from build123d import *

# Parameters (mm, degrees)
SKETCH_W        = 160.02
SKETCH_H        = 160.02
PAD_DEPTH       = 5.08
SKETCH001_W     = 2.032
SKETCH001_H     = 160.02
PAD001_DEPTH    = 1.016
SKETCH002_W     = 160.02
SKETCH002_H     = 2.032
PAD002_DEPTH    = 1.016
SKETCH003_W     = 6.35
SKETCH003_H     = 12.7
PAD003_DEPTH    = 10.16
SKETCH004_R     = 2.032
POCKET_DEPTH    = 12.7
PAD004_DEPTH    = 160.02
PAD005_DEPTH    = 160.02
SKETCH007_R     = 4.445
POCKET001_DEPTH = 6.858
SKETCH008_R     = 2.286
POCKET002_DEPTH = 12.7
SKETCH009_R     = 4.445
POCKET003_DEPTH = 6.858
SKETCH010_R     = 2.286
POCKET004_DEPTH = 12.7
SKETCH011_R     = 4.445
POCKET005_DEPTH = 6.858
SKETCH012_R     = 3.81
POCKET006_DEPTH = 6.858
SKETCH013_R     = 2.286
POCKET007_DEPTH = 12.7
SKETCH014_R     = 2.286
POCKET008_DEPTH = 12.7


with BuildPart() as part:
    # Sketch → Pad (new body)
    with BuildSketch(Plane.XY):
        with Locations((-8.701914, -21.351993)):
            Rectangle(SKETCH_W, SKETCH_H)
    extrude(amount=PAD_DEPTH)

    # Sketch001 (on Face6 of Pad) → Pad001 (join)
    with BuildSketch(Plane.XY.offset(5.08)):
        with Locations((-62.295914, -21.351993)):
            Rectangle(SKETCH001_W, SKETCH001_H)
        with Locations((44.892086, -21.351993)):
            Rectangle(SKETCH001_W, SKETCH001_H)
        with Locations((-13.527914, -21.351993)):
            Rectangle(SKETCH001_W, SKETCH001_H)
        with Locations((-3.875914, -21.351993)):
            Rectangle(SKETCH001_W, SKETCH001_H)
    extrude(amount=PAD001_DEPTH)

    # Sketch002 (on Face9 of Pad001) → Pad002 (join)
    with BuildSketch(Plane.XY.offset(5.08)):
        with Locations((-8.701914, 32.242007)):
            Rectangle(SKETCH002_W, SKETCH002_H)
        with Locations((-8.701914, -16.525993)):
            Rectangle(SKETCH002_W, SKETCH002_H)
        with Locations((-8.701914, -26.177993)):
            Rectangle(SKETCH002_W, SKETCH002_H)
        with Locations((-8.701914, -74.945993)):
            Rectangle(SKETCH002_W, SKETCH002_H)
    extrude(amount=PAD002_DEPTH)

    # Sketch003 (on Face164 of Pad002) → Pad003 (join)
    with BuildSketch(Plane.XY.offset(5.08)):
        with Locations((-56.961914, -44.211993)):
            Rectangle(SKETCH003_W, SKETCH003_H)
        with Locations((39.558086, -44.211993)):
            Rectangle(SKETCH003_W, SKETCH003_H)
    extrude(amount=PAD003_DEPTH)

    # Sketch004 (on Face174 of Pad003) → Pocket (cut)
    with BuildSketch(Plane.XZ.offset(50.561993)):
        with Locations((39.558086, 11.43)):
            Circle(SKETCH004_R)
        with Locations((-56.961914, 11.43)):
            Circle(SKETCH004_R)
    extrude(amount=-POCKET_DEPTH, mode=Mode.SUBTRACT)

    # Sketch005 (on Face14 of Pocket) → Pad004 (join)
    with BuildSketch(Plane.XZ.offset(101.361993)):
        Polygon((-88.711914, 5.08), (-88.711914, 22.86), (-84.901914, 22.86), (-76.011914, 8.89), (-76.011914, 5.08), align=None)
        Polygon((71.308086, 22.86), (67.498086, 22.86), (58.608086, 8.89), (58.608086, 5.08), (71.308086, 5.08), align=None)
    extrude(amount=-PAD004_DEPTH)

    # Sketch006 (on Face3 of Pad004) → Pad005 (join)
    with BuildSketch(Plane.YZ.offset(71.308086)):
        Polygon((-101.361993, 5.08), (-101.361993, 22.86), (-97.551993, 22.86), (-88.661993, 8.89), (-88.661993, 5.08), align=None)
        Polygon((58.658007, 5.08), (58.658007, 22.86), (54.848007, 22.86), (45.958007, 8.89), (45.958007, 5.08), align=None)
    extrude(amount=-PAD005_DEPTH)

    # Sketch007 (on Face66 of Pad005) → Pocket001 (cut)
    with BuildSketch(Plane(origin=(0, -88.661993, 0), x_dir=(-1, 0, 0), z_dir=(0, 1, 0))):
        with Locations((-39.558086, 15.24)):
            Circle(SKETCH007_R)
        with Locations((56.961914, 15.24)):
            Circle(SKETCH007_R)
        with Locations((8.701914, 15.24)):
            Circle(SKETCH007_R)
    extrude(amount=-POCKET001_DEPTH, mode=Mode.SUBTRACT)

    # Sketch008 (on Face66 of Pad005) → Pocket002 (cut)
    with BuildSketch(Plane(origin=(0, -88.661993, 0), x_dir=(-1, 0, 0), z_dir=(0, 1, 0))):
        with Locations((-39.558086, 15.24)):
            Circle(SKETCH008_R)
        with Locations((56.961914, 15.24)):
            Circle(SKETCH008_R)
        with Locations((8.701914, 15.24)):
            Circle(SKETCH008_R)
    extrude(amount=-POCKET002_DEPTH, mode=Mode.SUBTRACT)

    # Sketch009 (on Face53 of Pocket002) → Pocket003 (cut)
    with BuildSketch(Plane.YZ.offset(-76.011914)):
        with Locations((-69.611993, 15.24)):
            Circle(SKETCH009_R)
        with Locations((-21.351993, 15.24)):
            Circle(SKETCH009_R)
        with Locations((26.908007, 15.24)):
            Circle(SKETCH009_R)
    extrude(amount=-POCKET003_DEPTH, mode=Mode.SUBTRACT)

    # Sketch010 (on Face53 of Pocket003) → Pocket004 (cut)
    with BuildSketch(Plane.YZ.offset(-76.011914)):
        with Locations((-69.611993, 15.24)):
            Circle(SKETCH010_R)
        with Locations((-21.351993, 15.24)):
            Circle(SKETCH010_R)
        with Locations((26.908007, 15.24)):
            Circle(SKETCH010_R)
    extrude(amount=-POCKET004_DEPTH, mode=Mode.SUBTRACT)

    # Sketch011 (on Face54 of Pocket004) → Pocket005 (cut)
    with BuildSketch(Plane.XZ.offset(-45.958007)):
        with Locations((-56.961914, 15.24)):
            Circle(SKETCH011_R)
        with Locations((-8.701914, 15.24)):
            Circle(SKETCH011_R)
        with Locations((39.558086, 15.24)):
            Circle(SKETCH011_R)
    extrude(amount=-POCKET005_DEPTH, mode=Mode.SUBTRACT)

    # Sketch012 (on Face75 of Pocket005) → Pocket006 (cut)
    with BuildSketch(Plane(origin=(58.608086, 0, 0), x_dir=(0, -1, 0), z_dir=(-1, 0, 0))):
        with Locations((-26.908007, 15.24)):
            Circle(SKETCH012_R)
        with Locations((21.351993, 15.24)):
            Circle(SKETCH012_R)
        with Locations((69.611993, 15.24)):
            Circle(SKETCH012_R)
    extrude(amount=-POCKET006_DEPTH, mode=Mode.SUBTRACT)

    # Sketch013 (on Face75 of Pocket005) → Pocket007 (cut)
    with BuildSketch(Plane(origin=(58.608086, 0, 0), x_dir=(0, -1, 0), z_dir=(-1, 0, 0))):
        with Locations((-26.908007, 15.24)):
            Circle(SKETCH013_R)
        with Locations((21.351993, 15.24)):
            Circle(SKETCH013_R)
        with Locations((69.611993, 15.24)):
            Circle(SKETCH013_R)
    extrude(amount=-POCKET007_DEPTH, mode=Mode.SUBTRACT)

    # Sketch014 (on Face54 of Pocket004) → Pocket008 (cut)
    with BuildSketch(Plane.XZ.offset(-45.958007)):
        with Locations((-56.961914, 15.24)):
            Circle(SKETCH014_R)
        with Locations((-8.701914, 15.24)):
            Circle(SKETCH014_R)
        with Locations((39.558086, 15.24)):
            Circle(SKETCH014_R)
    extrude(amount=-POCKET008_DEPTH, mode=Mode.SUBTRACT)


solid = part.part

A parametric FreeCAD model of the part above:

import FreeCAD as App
import Part
import Sketcher

V = App.Vector
Q = App.Units.Quantity

doc = App.newDocument("Part")
body = doc.addObject("PartDesign::Body", "Body")

# Sketch on XY plane
sketch1 = body.newObject("Sketcher::SketchObject", "Sketch")
sketch1.AttachmentSupport = (doc.getObject("XY_Plane"), [""])
sketch1.MapMode = "FlatFace"
sketch1.addGeometry(Part.LineSegment(V(-88.711914, 58.658007, 0), V(-88.711914, -101.361993, 0)), False)
sketch1.addGeometry(Part.LineSegment(V(-88.711914, -101.361993, 0), V(71.308086, -101.361993, 0)), False)
sketch1.addGeometry(Part.LineSegment(V(71.308086, -101.361993, 0), V(71.308086, 58.658007, 0)), False)
sketch1.addGeometry(Part.LineSegment(V(71.308086, 58.658007, 0), V(-88.711914, 58.658007, 0)), False)
sketch1.addConstraint(Sketcher.Constraint("Coincident", 0, 2, 1, 1))
sketch1.addConstraint(Sketcher.Constraint("Coincident", 1, 2, 2, 1))
sketch1.addConstraint(Sketcher.Constraint("Coincident", 2, 2, 3, 1))
sketch1.addConstraint(Sketcher.Constraint("Coincident", 3, 2, 0, 1))
sketch1.addConstraint(Sketcher.Constraint("Vertical", 0))
sketch1.addConstraint(Sketcher.Constraint("Horizontal", 1))
sketch1.addConstraint(Sketcher.Constraint("Vertical", 2))
sketch1.addConstraint(Sketcher.Constraint("Horizontal", 3))
sketch1.addConstraint(Sketcher.Constraint("Equal", 3, 0))
sketch1.addConstraint(Sketcher.Constraint("DistanceX", 1, 1, 1, 2, Q("6.3 in")))
sketch1.addConstraint(Sketcher.Constraint("DistanceX", 0, 2, -1, 1, Q("88.711914 mm")))
sketch1.addConstraint(Sketcher.Constraint("DistanceY", 0, 2, -1, 1, Q("101.361993 mm")))
pad1 = body.newObject("PartDesign::Pad", "Pad")
pad1.Profile = sketch1
pad1.Length = Q("0.2 in")

# Sketch on XY plane
sketch2 = body.newObject("Sketcher::SketchObject", "Sketch001")
sketch2.AttachmentSupport = (doc.getObject("XY_Plane"), [""])
sketch2.MapMode = "FlatFace"
sketch2.AttachmentOffset = App.Placement(V(0, 0, 0.2 * 25.4), App.Rotation())
sketch2.addGeometry(Part.LineSegment(V(-63.311914, 58.658007, 0), V(-63.311914, -101.361993, 0)), False)
sketch2.addGeometry(Part.LineSegment(V(-63.311914, -101.361993, 0), V(-61.279914, -101.361993, 0)), False)
sketch2.addGeometry(Part.LineSegment(V(-61.279914, -101.361993, 0), V(-61.279914, 58.658007, 0)), False)
sketch2.addGeometry(Part.LineSegment(V(-61.279914, 58.658007, 0), V(-63.311914, 58.658007, 0)), False)
sketch2.addGeometry(Part.LineSegment(V(43.876086, 58.658007, 0), V(43.876086, -101.361993, 0)), False)
sketch2.addGeometry(Part.LineSegment(V(43.876086, -101.361993, 0), V(45.908086, -101.361993, 0)), False)
sketch2.addGeometry(Part.LineSegment(V(45.908086, -101.361993, 0), V(45.908086, 58.658007, 0)), False)
sketch2.addGeometry(Part.LineSegment(V(45.908086, 58.658007, 0), V(43.876086, 58.658007, 0)), False)
sketch2.addGeometry(Part.LineSegment(V(-14.543914, 58.658007, 0), V(-14.543914, -101.361993, 0)), False)
sketch2.addGeometry(Part.LineSegment(V(-14.543914, -101.361993, 0), V(-12.511914, -101.361993, 0)), False)
sketch2.addGeometry(Part.LineSegment(V(-12.511914, -101.361993, 0), V(-12.511914, 58.658007, 0)), False)
sketch2.addGeometry(Part.LineSegment(V(-12.511914, 58.658007, 0), V(-14.543914, 58.658007, 0)), False)
sketch2.addGeometry(Part.LineSegment(V(-4.891914, 58.658007, 0), V(-4.891914, -101.361993, 0)), False)
sketch2.addGeometry(Part.LineSegment(V(-4.891914, -101.361993, 0), V(-2.859914, -101.361993, 0)), False)
sketch2.addGeometry(Part.LineSegment(V(-2.859914, -101.361993, 0), V(-2.859914, 58.658007, 0)), False)
sketch2.addGeometry(Part.LineSegment(V(-2.859914, 58.658007, 0), V(-4.891914, 58.658007, 0)), False)
sketch2.addConstraint(Sketcher.Constraint("Coincident", 0, 2, 1, 1))
sketch2.addConstraint(Sketcher.Constraint("Coincident", 1, 2, 2, 1))
sketch2.addConstraint(Sketcher.Constraint("Coincident", 2, 2, 3, 1))
sketch2.addConstraint(Sketcher.Constraint("Coincident", 3, 2, 0, 1))
sketch2.addConstraint(Sketcher.Constraint("Coincident", 4, 2, 5, 1))
sketch2.addConstraint(Sketcher.Constraint("Coincident", 5, 2, 6, 1))
sketch2.addConstraint(Sketcher.Constraint("Coincident", 6, 2, 7, 1))
sketch2.addConstraint(Sketcher.Constraint("Coincident", 7, 2, 4, 1))
sketch2.addConstraint(Sketcher.Constraint("Coincident", 8, 2, 9, 1))
sketch2.addConstraint(Sketcher.Constraint("Coincident", 9, 2, 10, 1))
sketch2.addConstraint(Sketcher.Constraint("Coincident", 10, 2, 11, 1))
sketch2.addConstraint(Sketcher.Constraint("Coincident", 11, 2, 8, 1))
sketch2.addConstraint(Sketcher.Constraint("Coincident", 12, 2, 13, 1))
sketch2.addConstraint(Sketcher.Constraint("Coincident", 13, 2, 14, 1))
sketch2.addConstraint(Sketcher.Constraint("Coincident", 14, 2, 15, 1))
sketch2.addConstraint(Sketcher.Constraint("Coincident", 15, 2, 12, 1))
sketch2.addConstraint(Sketcher.Constraint("Vertical", 0))
sketch2.addConstraint(Sketcher.Constraint("Horizontal", 1))
sketch2.addConstraint(Sketcher.Constraint("Vertical", 2))
sketch2.addConstraint(Sketcher.Constraint("Horizontal", 3))
sketch2.addConstraint(Sketcher.Constraint("Vertical", 4))
sketch2.addConstraint(Sketcher.Constraint("Horizontal", 5))
sketch2.addConstraint(Sketcher.Constraint("Vertical", 6))
sketch2.addConstraint(Sketcher.Constraint("Horizontal", 7))
sketch2.addConstraint(Sketcher.Constraint("Vertical", 8))
sketch2.addConstraint(Sketcher.Constraint("Horizontal", 9))
sketch2.addConstraint(Sketcher.Constraint("Vertical", 10))
sketch2.addConstraint(Sketcher.Constraint("Horizontal", 11))
sketch2.addConstraint(Sketcher.Constraint("Vertical", 12))
sketch2.addConstraint(Sketcher.Constraint("Horizontal", 13))
sketch2.addConstraint(Sketcher.Constraint("Vertical", 14))
sketch2.addConstraint(Sketcher.Constraint("Horizontal", 15))
sketch2.addConstraint(Sketcher.Constraint("Horizontal", 1, 2, 4, 2))
sketch2.addConstraint(Sketcher.Constraint("Horizontal", 3, 2, 6, 2))
sketch2.addConstraint(Sketcher.Constraint("Horizontal", 5, 2, 8, 2))
sketch2.addConstraint(Sketcher.Constraint("Horizontal", 7, 2, 10, 2))
sketch2.addConstraint(Sketcher.Constraint("Horizontal", 9, 2, 12, 2))
sketch2.addConstraint(Sketcher.Constraint("Horizontal", 11, 2, 14, 2))
sketch2.addConstraint(Sketcher.Constraint("Equal", 3, 5))
sketch2.addConstraint(Sketcher.Constraint("Equal", 7, 9))
sketch2.addConstraint(Sketcher.Constraint("Equal", 11, 13))
sketch2.addConstraint(Sketcher.Constraint("DistanceY", 0, 2, 0, 1, Q("6.3 in")))
sketch2.addConstraint(Sketcher.Constraint("DistanceX", 0, 2, 9, 2, Q("2 in")))
sketch2.addConstraint(Sketcher.Constraint("DistanceX", 12, 2, 5, 2, Q("2 in")))
sketch2.addConstraint(Sketcher.Constraint("DistanceX", 1, 1, 1, 2, Q("0.08 in")))
sketch2.addConstraint(Sketcher.Constraint("DistanceX", 0, 2, 5, 2, Q("4.3 in")))
sketch2.addConstraint(Sketcher.Constraint("DistanceX", 0, 2, -1, 1, Q("63.311914 mm")))
sketch2.addConstraint(Sketcher.Constraint("DistanceY", 0, 2, -1, 1, Q("101.361993 mm")))
pad2 = body.newObject("PartDesign::Pad", "Pad001")
pad2.Profile = sketch2
pad2.Length = Q("0.04 in")

# Sketch on XY plane
sketch3 = body.newObject("Sketcher::SketchObject", "Sketch002")
sketch3.AttachmentSupport = (doc.getObject("XY_Plane"), [""])
sketch3.MapMode = "FlatFace"
sketch3.AttachmentOffset = App.Placement(V(0, 0, 0.2 * 25.4), App.Rotation())
sketch3.addGeometry(Part.LineSegment(V(-88.711914, 33.258007, 0), V(-88.711914, 31.226007, 0)), False)
sketch3.addGeometry(Part.LineSegment(V(-88.711914, 31.226007, 0), V(71.308086, 31.226007, 0)), False)
sketch3.addGeometry(Part.LineSegment(V(71.308086, 31.226007, 0), V(71.308086, 33.258007, 0)), False)
sketch3.addGeometry(Part.LineSegment(V(71.308086, 33.258007, 0), V(-88.711914, 33.258007, 0)), False)
sketch3.addGeometry(Part.LineSegment(V(-88.711914, -15.509993, 0), V(-88.711914, -17.541993, 0)), False)
sketch3.addGeometry(Part.LineSegment(V(-88.711914, -17.541993, 0), V(71.308086, -17.541993, 0)), False)
sketch3.addGeometry(Part.LineSegment(V(71.308086, -17.541993, 0), V(71.308086, -15.509993, 0)), False)
sketch3.addGeometry(Part.LineSegment(V(71.308086, -15.509993, 0), V(-88.711914, -15.509993, 0)), False)
sketch3.addGeometry(Part.LineSegment(V(-88.711914, -25.161993, 0), V(-88.711914, -27.193993, 0)), False)
sketch3.addGeometry(Part.LineSegment(V(-88.711914, -27.193993, 0), V(71.308086, -27.193993, 0)), False)
sketch3.addGeometry(Part.LineSegment(V(71.308086, -27.193993, 0), V(71.308086, -25.161993, 0)), False)
sketch3.addGeometry(Part.LineSegment(V(71.308086, -25.161993, 0), V(-88.711914, -25.161993, 0)), False)
sketch3.addGeometry(Part.LineSegment(V(-88.711914, -73.929993, 0), V(-88.711914, -75.961993, 0)), False)
sketch3.addGeometry(Part.LineSegment(V(-88.711914, -75.961993, 0), V(71.308086, -75.961993, 0)), False)
sketch3.addGeometry(Part.LineSegment(V(71.308086, -75.961993, 0), V(71.308086, -73.929993, 0)), False)
sketch3.addGeometry(Part.LineSegment(V(71.308086, -73.929993, 0), V(-88.711914, -73.929993, 0)), False)
sketch3.addConstraint(Sketcher.Constraint("Coincident", 0, 2, 1, 1))
sketch3.addConstraint(Sketcher.Constraint("Coincident", 1, 2, 2, 1))
sketch3.addConstraint(Sketcher.Constraint("Coincident", 2, 2, 3, 1))
sketch3.addConstraint(Sketcher.Constraint("Coincident", 3, 2, 0, 1))
sketch3.addConstraint(Sketcher.Constraint("Coincident", 4, 2, 5, 1))
sketch3.addConstraint(Sketcher.Constraint("Coincident", 5, 2, 6, 1))
sketch3.addConstraint(Sketcher.Constraint("Coincident", 6, 2, 7, 1))
sketch3.addConstraint(Sketcher.Constraint("Coincident", 7, 2, 4, 1))
sketch3.addConstraint(Sketcher.Constraint("Coincident", 8, 2, 9, 1))
sketch3.addConstraint(Sketcher.Constraint("Coincident", 9, 2, 10, 1))
sketch3.addConstraint(Sketcher.Constraint("Coincident", 10, 2, 11, 1))
sketch3.addConstraint(Sketcher.Constraint("Coincident", 11, 2, 8, 1))
sketch3.addConstraint(Sketcher.Constraint("Coincident", 12, 2, 13, 1))
sketch3.addConstraint(Sketcher.Constraint("Coincident", 13, 2, 14, 1))
sketch3.addConstraint(Sketcher.Constraint("Coincident", 14, 2, 15, 1))
sketch3.addConstraint(Sketcher.Constraint("Coincident", 15, 2, 12, 1))
sketch3.addConstraint(Sketcher.Constraint("Vertical", 0))
sketch3.addConstraint(Sketcher.Constraint("Horizontal", 1))
sketch3.addConstraint(Sketcher.Constraint("Vertical", 2))
sketch3.addConstraint(Sketcher.Constraint("Horizontal", 3))
sketch3.addConstraint(Sketcher.Constraint("Vertical", 4))
sketch3.addConstraint(Sketcher.Constraint("Horizontal", 5))
sketch3.addConstraint(Sketcher.Constraint("Vertical", 6))
sketch3.addConstraint(Sketcher.Constraint("Horizontal", 7))
sketch3.addConstraint(Sketcher.Constraint("Vertical", 8))
sketch3.addConstraint(Sketcher.Constraint("Horizontal", 9))
sketch3.addConstraint(Sketcher.Constraint("Vertical", 10))
sketch3.addConstraint(Sketcher.Constraint("Horizontal", 11))
sketch3.addConstraint(Sketcher.Constraint("Vertical", 12))
sketch3.addConstraint(Sketcher.Constraint("Horizontal", 13))
sketch3.addConstraint(Sketcher.Constraint("Vertical", 14))
sketch3.addConstraint(Sketcher.Constraint("Horizontal", 15))
sketch3.addConstraint(Sketcher.Constraint("Vertical", 3, 2, 4, 2))
sketch3.addConstraint(Sketcher.Constraint("Vertical", 2, 2, 5, 2))
sketch3.addConstraint(Sketcher.Constraint("Vertical", 7, 2, 8, 2))
sketch3.addConstraint(Sketcher.Constraint("Vertical", 6, 2, 9, 2))
sketch3.addConstraint(Sketcher.Constraint("Vertical", 11, 2, 12, 2))
sketch3.addConstraint(Sketcher.Constraint("Vertical", 10, 2, 13, 2))
sketch3.addConstraint(Sketcher.Constraint("Equal", 2, 4))
sketch3.addConstraint(Sketcher.Constraint("Equal", 6, 8))
sketch3.addConstraint(Sketcher.Constraint("Equal", 10, 12))
sketch3.addConstraint(Sketcher.Constraint("DistanceX", 1, 1, 1, 2, Q("6.3 in")))
sketch3.addConstraint(Sketcher.Constraint("DistanceY", 4, 2, 3, 2, Q("2 in")))
sketch3.addConstraint(Sketcher.Constraint("DistanceY", 12, 2, 11, 2, Q("2 in")))
sketch3.addConstraint(Sketcher.Constraint("DistanceY", 0, 2, 0, 1, Q("0.08 in")))
sketch3.addConstraint(Sketcher.Constraint("DistanceY", 8, 2, 0, 2, Q("2.3 in")))
sketch3.addConstraint(Sketcher.Constraint("DistanceX", 0, 2, -1, 1, Q("88.711914 mm")))
sketch3.addConstraint(Sketcher.Constraint("DistanceY", -1, 1, 0, 2, Q("31.226007 mm")))
pad3 = body.newObject("PartDesign::Pad", "Pad002")
pad3.Profile = sketch3
pad3.Length = Q("0.04 in")

# Sketch on XY plane
sketch4 = body.newObject("Sketcher::SketchObject", "Sketch003")
sketch4.AttachmentSupport = (doc.getObject("XY_Plane"), [""])
sketch4.MapMode = "FlatFace"
sketch4.AttachmentOffset = App.Placement(V(0, 0, 0.2 * 25.4), App.Rotation())
sketch4.addGeometry(Part.LineSegment(V(-60.136914, -37.861993, 0), V(-60.136914, -50.561993, 0)), False)
sketch4.addGeometry(Part.LineSegment(V(-60.136914, -50.561993, 0), V(-53.786914, -50.561993, 0)), False)
sketch4.addGeometry(Part.LineSegment(V(-53.786914, -50.561993, 0), V(-53.786914, -37.861993, 0)), False)
sketch4.addGeometry(Part.LineSegment(V(-53.786914, -37.861993, 0), V(-60.136914, -37.861993, 0)), False)
sketch4.addGeometry(Part.LineSegment(V(36.383086, -37.861993, 0), V(36.383086, -50.561993, 0)), False)
sketch4.addGeometry(Part.LineSegment(V(36.383086, -50.561993, 0), V(42.733086, -50.561993, 0)), False)
sketch4.addGeometry(Part.LineSegment(V(42.733086, -50.561993, 0), V(42.733086, -37.861993, 0)), False)
sketch4.addGeometry(Part.LineSegment(V(42.733086, -37.861993, 0), V(36.383086, -37.861993, 0)), False)
sketch4.addConstraint(Sketcher.Constraint("Coincident", 0, 2, 1, 1))
sketch4.addConstraint(Sketcher.Constraint("Coincident", 1, 2, 2, 1))
sketch4.addConstraint(Sketcher.Constraint("Coincident", 2, 2, 3, 1))
sketch4.addConstraint(Sketcher.Constraint("Coincident", 3, 2, 0, 1))
sketch4.addConstraint(Sketcher.Constraint("Coincident", 4, 2, 5, 1))
sketch4.addConstraint(Sketcher.Constraint("Coincident", 5, 2, 6, 1))
sketch4.addConstraint(Sketcher.Constraint("Coincident", 6, 2, 7, 1))
sketch4.addConstraint(Sketcher.Constraint("Coincident", 7, 2, 4, 1))
sketch4.addConstraint(Sketcher.Constraint("Vertical", 0))
sketch4.addConstraint(Sketcher.Constraint("Horizontal", 1))
sketch4.addConstraint(Sketcher.Constraint("Vertical", 2))
sketch4.addConstraint(Sketcher.Constraint("Horizontal", 3))
sketch4.addConstraint(Sketcher.Constraint("Vertical", 4))
sketch4.addConstraint(Sketcher.Constraint("Horizontal", 5))
sketch4.addConstraint(Sketcher.Constraint("Vertical", 6))
sketch4.addConstraint(Sketcher.Constraint("Horizontal", 7))
sketch4.addConstraint(Sketcher.Constraint("Horizontal", 1, 2, 4, 2))
sketch4.addConstraint(Sketcher.Constraint("Horizontal", 3, 2, 6, 2))
sketch4.addConstraint(Sketcher.Constraint("Equal", 3, 5))
sketch4.addConstraint(Sketcher.Constraint("DistanceY", 0, 2, 0, 1, Q("0.5 in")))
sketch4.addConstraint(Sketcher.Constraint("DistanceX", 1, 1, 1, 2, Q("0.25 in")))
sketch4.addConstraint(Sketcher.Constraint("DistanceX", 0, 2, 4, 2, Q("3.8 in")))
sketch4.addConstraint(Sketcher.Constraint("DistanceX", 0, 2, -1, 1, Q("60.136914 mm")))
sketch4.addConstraint(Sketcher.Constraint("DistanceY", 0, 2, -1, 1, Q("50.561993 mm")))
pad4 = body.newObject("PartDesign::Pad", "Pad003")
pad4.Profile = sketch4
pad4.Length = Q("0.4 in")

# Sketch on XZ plane
sketch5 = body.newObject("Sketcher::SketchObject", "Sketch004")
sketch5.AttachmentSupport = (doc.getObject("XZ_Plane"), [""])
sketch5.MapMode = "FlatFace"
sketch5.AttachmentOffset = App.Placement(V(0, 0, 50.561993), App.Rotation())
sketch5.addGeometry(Part.Circle(V(39.558086, 11.43, 0), V(0, 0, 1), 2.032), False)
sketch5.addGeometry(Part.Circle(V(-56.961914, 11.43, 0), V(0, 0, 1), 2.032), False)
sketch5.addConstraint(Sketcher.Constraint("Equal", 0, 1))
sketch5.addConstraint(Sketcher.Constraint("Horizontal", 0, 3, 1, 3))
sketch5.addConstraint(Sketcher.Constraint("Diameter", 0, Q("0.16 in")))
sketch5.addConstraint(Sketcher.Constraint("DistanceX", 1, 3, 0, 3, Q("3.8 in")))
sketch5.addConstraint(Sketcher.Constraint("DistanceY", -1, 1, 0, 3, Q("0.45 in")))
sketch5.addConstraint(Sketcher.Constraint("DistanceX", -1, 1, 0, 3, Q("39.558086 mm")))
pocket1 = body.newObject("PartDesign::Pocket", "Pocket")
pocket1.Profile = sketch5
pocket1.Length = Q("0.5 in")

# Sketch on XZ plane
sketch6 = body.newObject("Sketcher::SketchObject", "Sketch005")
sketch6.AttachmentSupport = (doc.getObject("XZ_Plane"), [""])
sketch6.MapMode = "FlatFace"
sketch6.AttachmentOffset = App.Placement(V(0, 0, 101.361993), App.Rotation())
sketch6.addGeometry(Part.LineSegment(V(-88.711914, 22.86, 0), V(-88.711914, 5.08, 0)), False)
sketch6.addGeometry(Part.LineSegment(V(-88.711914, 5.08, 0), V(-76.011914, 5.08, 0)), False)
sketch6.addGeometry(Part.LineSegment(V(-76.011914, 5.08, 0), V(-76.011914, 8.89, 0)), False)
sketch6.addGeometry(Part.LineSegment(V(-76.011914, 8.89, 0), V(-84.901914, 22.86, 0)), False)
sketch6.addGeometry(Part.LineSegment(V(-84.901914, 22.86, 0), V(-88.711914, 22.86, 0)), False)
sketch6.addGeometry(Part.LineSegment(V(71.308086, 22.86, 0), V(67.498086, 22.86, 0)), False)
sketch6.addGeometry(Part.LineSegment(V(67.498086, 22.86, 0), V(58.608086, 8.89, 0)), False)
sketch6.addGeometry(Part.LineSegment(V(58.608086, 8.89, 0), V(58.608086, 5.08, 0)), False)
sketch6.addGeometry(Part.LineSegment(V(58.608086, 5.08, 0), V(71.308086, 5.08, 0)), False)
sketch6.addGeometry(Part.LineSegment(V(71.308086, 5.08, 0), V(71.308086, 22.86, 0)), False)
sketch6.addConstraint(Sketcher.Constraint("Coincident", 0, 2, 1, 1))
sketch6.addConstraint(Sketcher.Constraint("Coincident", 1, 2, 2, 1))
sketch6.addConstraint(Sketcher.Constraint("Coincident", 2, 2, 3, 1))
sketch6.addConstraint(Sketcher.Constraint("Coincident", 3, 2, 4, 1))
sketch6.addConstraint(Sketcher.Constraint("Coincident", 4, 2, 0, 1))
sketch6.addConstraint(Sketcher.Constraint("Coincident", 5, 2, 6, 1))
sketch6.addConstraint(Sketcher.Constraint("Coincident", 6, 2, 7, 1))
sketch6.addConstraint(Sketcher.Constraint("Coincident", 7, 2, 8, 1))
sketch6.addConstraint(Sketcher.Constraint("Coincident", 8, 2, 9, 1))
sketch6.addConstraint(Sketcher.Constraint("Coincident", 9, 2, 5, 1))
sketch6.addConstraint(Sketcher.Constraint("Vertical", 0))
sketch6.addConstraint(Sketcher.Constraint("Horizontal", 1))
sketch6.addConstraint(Sketcher.Constraint("Vertical", 2))
sketch6.addConstraint(Sketcher.Constraint("Horizontal", 4))
sketch6.addConstraint(Sketcher.Constraint("Horizontal", 5))
sketch6.addConstraint(Sketcher.Constraint("Vertical", 7))
sketch6.addConstraint(Sketcher.Constraint("Horizontal", 8))
sketch6.addConstraint(Sketcher.Constraint("Vertical", 9))
sketch6.addConstraint(Sketcher.Constraint("Horizontal", 4, 2, 5, 2))
sketch6.addConstraint(Sketcher.Constraint("Horizontal", 2, 2, 6, 2))
sketch6.addConstraint(Sketcher.Constraint("Horizontal", 1, 2, 7, 2))
sketch6.addConstraint(Sketcher.Constraint("Equal", 4, 5))
sketch6.addConstraint(Sketcher.Constraint("Equal", 1, 8))
sketch6.addConstraint(Sketcher.Constraint("Equal", 5, 2))
sketch6.addConstraint(Sketcher.Constraint("DistanceX", 1, 1, 1, 2, Q("0.5 in")))
sketch6.addConstraint(Sketcher.Constraint("DistanceY", 0, 2, 0, 1, Q("0.7 in")))
sketch6.addConstraint(Sketcher.Constraint("DistanceX", 3, 2, 5, 2, Q("6 in")))
sketch6.addConstraint(Sketcher.Constraint("DistanceX", 4, 2, 4, 1, Q("0.15 in")))
sketch6.addConstraint(Sketcher.Constraint("DistanceY", -1, 1, 0, 2, Q("0.2 in")))
sketch6.addConstraint(Sketcher.Constraint("DistanceX", 0, 2, -1, 1, Q("88.711914 mm")))
pad5 = body.newObject("PartDesign::Pad", "Pad004")
pad5.Profile = sketch6
pad5.Length = Q("6.3 in")
pad5.Reversed = True

# Sketch on YZ plane
sketch7 = body.newObject("Sketcher::SketchObject", "Sketch006")
sketch7.AttachmentSupport = (doc.getObject("YZ_Plane"), [""])
sketch7.MapMode = "FlatFace"
sketch7.AttachmentOffset = App.Placement(V(0, 0, 71.308086), App.Rotation())
sketch7.addGeometry(Part.LineSegment(V(-101.361993, 22.86, 0), V(-101.361993, 5.08, 0)), False)
sketch7.addGeometry(Part.LineSegment(V(-101.361993, 5.08, 0), V(-88.661993, 5.08, 0)), False)
sketch7.addGeometry(Part.LineSegment(V(-88.661993, 5.08, 0), V(-88.661993, 8.89, 0)), False)
sketch7.addGeometry(Part.LineSegment(V(-88.661993, 8.89, 0), V(-97.551993, 22.86, 0)), False)
sketch7.addGeometry(Part.LineSegment(V(-97.551993, 22.86, 0), V(-101.361993, 22.86, 0)), False)
sketch7.addGeometry(Part.LineSegment(V(58.658007, 5.08, 0), V(58.658007, 22.86, 0)), False)
sketch7.addGeometry(Part.LineSegment(V(58.658007, 22.86, 0), V(54.848007, 22.86, 0)), False)
sketch7.addGeometry(Part.LineSegment(V(54.848007, 22.86, 0), V(45.958007, 8.89, 0)), False)
sketch7.addGeometry(Part.LineSegment(V(45.958007, 8.89, 0), V(45.958007, 5.08, 0)), False)
sketch7.addGeometry(Part.LineSegment(V(45.958007, 5.08, 0), V(58.658007, 5.08, 0)), False)
sketch7.addConstraint(Sketcher.Constraint("Coincident", 0, 2, 1, 1))
sketch7.addConstraint(Sketcher.Constraint("Coincident", 1, 2, 2, 1))
sketch7.addConstraint(Sketcher.Constraint("Coincident", 2, 2, 3, 1))
sketch7.addConstraint(Sketcher.Constraint("Coincident", 3, 2, 4, 1))
sketch7.addConstraint(Sketcher.Constraint("Coincident", 4, 2, 0, 1))
sketch7.addConstraint(Sketcher.Constraint("Coincident", 5, 2, 6, 1))
sketch7.addConstraint(Sketcher.Constraint("Coincident", 6, 2, 7, 1))
sketch7.addConstraint(Sketcher.Constraint("Coincident", 7, 2, 8, 1))
sketch7.addConstraint(Sketcher.Constraint("Coincident", 8, 2, 9, 1))
sketch7.addConstraint(Sketcher.Constraint("Coincident", 9, 2, 5, 1))
sketch7.addConstraint(Sketcher.Constraint("Vertical", 0))
sketch7.addConstraint(Sketcher.Constraint("Horizontal", 1))
sketch7.addConstraint(Sketcher.Constraint("Vertical", 2))
sketch7.addConstraint(Sketcher.Constraint("Horizontal", 4))
sketch7.addConstraint(Sketcher.Constraint("Vertical", 5))
sketch7.addConstraint(Sketcher.Constraint("Horizontal", 6))
sketch7.addConstraint(Sketcher.Constraint("Vertical", 8))
sketch7.addConstraint(Sketcher.Constraint("Horizontal", 9))
sketch7.addConstraint(Sketcher.Constraint("Horizontal", 4, 2, 5, 2))
sketch7.addConstraint(Sketcher.Constraint("Horizontal", 2, 2, 7, 2))
sketch7.addConstraint(Sketcher.Constraint("Horizontal", 1, 2, 8, 2))
sketch7.addConstraint(Sketcher.Constraint("Equal", 4, 6))
sketch7.addConstraint(Sketcher.Constraint("Equal", 1, 9))
sketch7.addConstraint(Sketcher.Constraint("Equal", 6, 2))
sketch7.addConstraint(Sketcher.Constraint("DistanceX", 1, 1, 1, 2, Q("0.5 in")))
sketch7.addConstraint(Sketcher.Constraint("DistanceY", 0, 2, 0, 1, Q("0.7 in")))
sketch7.addConstraint(Sketcher.Constraint("DistanceX", 3, 2, 6, 2, Q("6 in")))
sketch7.addConstraint(Sketcher.Constraint("DistanceX", 4, 2, 4, 1, Q("0.15 in")))
sketch7.addConstraint(Sketcher.Constraint("DistanceY", -1, 1, 0, 2, Q("0.2 in")))
sketch7.addConstraint(Sketcher.Constraint("DistanceX", 0, 2, -1, 1, Q("101.361993 mm")))
pad6 = body.newObject("PartDesign::Pad", "Pad005")
pad6.Profile = sketch7
pad6.Length = Q("6.3 in")
pad6.Reversed = True

# Sketch on XZ plane
sketch8 = body.newObject("Sketcher::SketchObject", "Sketch007")
sketch8.AttachmentSupport = (doc.getObject("XZ_Plane"), [""])
sketch8.MapMode = "FlatFace"
sketch8.AttachmentOffset = App.Placement(V(0, 0, 88.661993), App.Rotation())
sketch8.addGeometry(Part.Circle(V(39.558086, 15.24, 0), V(0, 0, 1), 4.445), False)
sketch8.addGeometry(Part.Circle(V(-56.961914, 15.24, 0), V(0, 0, 1), 4.445), False)
sketch8.addGeometry(Part.Circle(V(-8.701914, 15.24, 0), V(0, 0, 1), 4.445), False)
sketch8.addConstraint(Sketcher.Constraint("Equal", 0, 1))
sketch8.addConstraint(Sketcher.Constraint("Equal", 1, 2))
sketch8.addConstraint(Sketcher.Constraint("Horizontal", 0, 3, 1, 3))
sketch8.addConstraint(Sketcher.Constraint("Horizontal", 1, 3, 2, 3))
sketch8.addConstraint(Sketcher.Constraint("Diameter", 0, Q("0.35 in")))
sketch8.addConstraint(Sketcher.Constraint("DistanceY", -1, 1, 0, 3, Q("0.6 in")))
sketch8.addConstraint(Sketcher.Constraint("DistanceX", 1, 3, 0, 3, Q("3.8 in")))
sketch8.addConstraint(Sketcher.Constraint("DistanceX", 1, 3, 2, 3, Q("1.9 in")))
sketch8.addConstraint(Sketcher.Constraint("DistanceX", -1, 1, 0, 3, Q("39.558086 mm")))
pocket2 = body.newObject("PartDesign::Pocket", "Pocket001")
pocket2.Profile = sketch8
pocket2.Length = Q("0.27 in")
pocket2.Reversed = True

# Sketch on XZ plane
sketch9 = body.newObject("Sketcher::SketchObject", "Sketch008")
sketch9.AttachmentSupport = (doc.getObject("XZ_Plane"), [""])
sketch9.MapMode = "FlatFace"
sketch9.AttachmentOffset = App.Placement(V(0, 0, 88.661993), App.Rotation())
sketch9.addGeometry(Part.Circle(V(39.558086, 15.24, 0), V(0, 0, 1), 2.286), False)
sketch9.addGeometry(Part.Circle(V(-56.961914, 15.24, 0), V(0, 0, 1), 2.286), False)
sketch9.addGeometry(Part.Circle(V(-8.701914, 15.24, 0), V(0, 0, 1), 2.286), False)
sketch9.addConstraint(Sketcher.Constraint("Equal", 0, 1))
sketch9.addConstraint(Sketcher.Constraint("Equal", 1, 2))
sketch9.addConstraint(Sketcher.Constraint("Horizontal", 0, 3, 1, 3))
sketch9.addConstraint(Sketcher.Constraint("Horizontal", 1, 3, 2, 3))
sketch9.addConstraint(Sketcher.Constraint("Diameter", 0, Q("0.18 in")))
sketch9.addConstraint(Sketcher.Constraint("DistanceY", -1, 1, 0, 3, Q("0.6 in")))
sketch9.addConstraint(Sketcher.Constraint("DistanceX", 1, 3, 0, 3, Q("3.8 in")))
sketch9.addConstraint(Sketcher.Constraint("DistanceX", 1, 3, 2, 3, Q("1.9 in")))
sketch9.addConstraint(Sketcher.Constraint("DistanceX", -1, 1, 0, 3, Q("39.558086 mm")))
pocket3 = body.newObject("PartDesign::Pocket", "Pocket002")
pocket3.Profile = sketch9
pocket3.Length = Q("0.5 in")
pocket3.Reversed = True

# Sketch on YZ plane
sketch10 = body.newObject("Sketcher::SketchObject", "Sketch009")
sketch10.AttachmentSupport = (doc.getObject("YZ_Plane"), [""])
sketch10.MapMode = "FlatFace"
sketch10.AttachmentOffset = App.Placement(V(0, 0, -76.011914), App.Rotation())
sketch10.addGeometry(Part.Circle(V(-69.611993, 15.24, 0), V(0, 0, 1), 4.445), False)
sketch10.addGeometry(Part.Circle(V(-21.351993, 15.24, 0), V(0, 0, 1), 4.445), False)
sketch10.addGeometry(Part.Circle(V(26.908007, 15.24, 0), V(0, 0, 1), 4.445), False)
sketch10.addConstraint(Sketcher.Constraint("Equal", 0, 1))
sketch10.addConstraint(Sketcher.Constraint("Equal", 1, 2))
sketch10.addConstraint(Sketcher.Constraint("Horizontal", 0, 3, 1, 3))
sketch10.addConstraint(Sketcher.Constraint("Horizontal", 1, 3, 2, 3))
sketch10.addConstraint(Sketcher.Constraint("Diameter", 0, Q("0.35 in")))
sketch10.addConstraint(Sketcher.Constraint("DistanceY", -1, 1, 0, 3, Q("0.6 in")))
sketch10.addConstraint(Sketcher.Constraint("DistanceX", 0, 3, 1, 3, Q("1.9 in")))
sketch10.addConstraint(Sketcher.Constraint("DistanceX", 1, 3, 2, 3, Q("1.9 in")))
sketch10.addConstraint(Sketcher.Constraint("DistanceX", 0, 3, -1, 1, Q("69.611993 mm")))
pocket4 = body.newObject("PartDesign::Pocket", "Pocket003")
pocket4.Profile = sketch10
pocket4.Length = Q("0.27 in")

# Sketch on YZ plane
sketch11 = body.newObject("Sketcher::SketchObject", "Sketch010")
sketch11.AttachmentSupport = (doc.getObject("YZ_Plane"), [""])
sketch11.MapMode = "FlatFace"
sketch11.AttachmentOffset = App.Placement(V(0, 0, -76.011914), App.Rotation())
sketch11.addGeometry(Part.Circle(V(-69.611993, 15.24, 0), V(0, 0, 1), 2.286), False)
sketch11.addGeometry(Part.Circle(V(-21.351993, 15.24, 0), V(0, 0, 1), 2.286), False)
sketch11.addGeometry(Part.Circle(V(26.908007, 15.24, 0), V(0, 0, 1), 2.286), False)
sketch11.addConstraint(Sketcher.Constraint("Equal", 0, 1))
sketch11.addConstraint(Sketcher.Constraint("Equal", 1, 2))
sketch11.addConstraint(Sketcher.Constraint("Horizontal", 0, 3, 1, 3))
sketch11.addConstraint(Sketcher.Constraint("Horizontal", 1, 3, 2, 3))
sketch11.addConstraint(Sketcher.Constraint("Diameter", 0, Q("0.18 in")))
sketch11.addConstraint(Sketcher.Constraint("DistanceY", -1, 1, 0, 3, Q("0.6 in")))
sketch11.addConstraint(Sketcher.Constraint("DistanceX", 0, 3, 1, 3, Q("1.9 in")))
sketch11.addConstraint(Sketcher.Constraint("DistanceX", 1, 3, 2, 3, Q("1.9 in")))
sketch11.addConstraint(Sketcher.Constraint("DistanceX", 0, 3, -1, 1, Q("69.611993 mm")))
pocket5 = body.newObject("PartDesign::Pocket", "Pocket004")
pocket5.Profile = sketch11
pocket5.Length = Q("0.5 in")

# Sketch on XZ plane
sketch12 = body.newObject("Sketcher::SketchObject", "Sketch011")
sketch12.AttachmentSupport = (doc.getObject("XZ_Plane"), [""])
sketch12.MapMode = "FlatFace"
sketch12.AttachmentOffset = App.Placement(V(0, 0, -45.958007), App.Rotation())
sketch12.addGeometry(Part.Circle(V(-56.961914, 15.24, 0), V(0, 0, 1), 4.445), False)
sketch12.addGeometry(Part.Circle(V(-8.701914, 15.24, 0), V(0, 0, 1), 4.445), False)
sketch12.addGeometry(Part.Circle(V(39.558086, 15.24, 0), V(0, 0, 1), 4.445), False)
sketch12.addConstraint(Sketcher.Constraint("Equal", 0, 1))
sketch12.addConstraint(Sketcher.Constraint("Equal", 1, 2))
sketch12.addConstraint(Sketcher.Constraint("Horizontal", 0, 3, 1, 3))
sketch12.addConstraint(Sketcher.Constraint("Horizontal", 1, 3, 2, 3))
sketch12.addConstraint(Sketcher.Constraint("Diameter", 0, Q("0.35 in")))
sketch12.addConstraint(Sketcher.Constraint("DistanceY", -1, 1, 0, 3, Q("0.6 in")))
sketch12.addConstraint(Sketcher.Constraint("DistanceX", 0, 3, 1, 3, Q("1.9 in")))
sketch12.addConstraint(Sketcher.Constraint("DistanceX", 1, 3, 2, 3, Q("1.9 in")))
sketch12.addConstraint(Sketcher.Constraint("DistanceX", 0, 3, -1, 1, Q("56.961914 mm")))
pocket6 = body.newObject("PartDesign::Pocket", "Pocket005")
pocket6.Profile = sketch12
pocket6.Length = Q("0.27 in")

# Sketch on YZ plane
sketch13 = body.newObject("Sketcher::SketchObject", "Sketch012")
sketch13.AttachmentSupport = (doc.getObject("YZ_Plane"), [""])
sketch13.MapMode = "FlatFace"
sketch13.AttachmentOffset = App.Placement(V(0, 0, 58.608086), App.Rotation())
sketch13.addGeometry(Part.Circle(V(26.908007, 15.24, 0), V(0, 0, 1), 3.81), False)
sketch13.addGeometry(Part.Circle(V(-21.351993, 15.24, 0), V(0, 0, 1), 3.81), False)
sketch13.addGeometry(Part.Circle(V(-69.611993, 15.24, 0), V(0, 0, 1), 3.81), False)
sketch13.addConstraint(Sketcher.Constraint("Equal", 0, 1))
sketch13.addConstraint(Sketcher.Constraint("Equal", 1, 2))
sketch13.addConstraint(Sketcher.Constraint("Horizontal", 0, 3, 1, 3))
sketch13.addConstraint(Sketcher.Constraint("Horizontal", 1, 3, 2, 3))
sketch13.addConstraint(Sketcher.Constraint("Diameter", 0, Q("0.3 in")))
sketch13.addConstraint(Sketcher.Constraint("DistanceY", -1, 1, 0, 3, Q("0.6 in")))
sketch13.addConstraint(Sketcher.Constraint("DistanceX", 1, 3, 0, 3, Q("1.9 in")))
sketch13.addConstraint(Sketcher.Constraint("DistanceX", 2, 3, 1, 3, Q("1.9 in")))
sketch13.addConstraint(Sketcher.Constraint("DistanceX", -1, 1, 0, 3, Q("26.908007 mm")))
pocket7 = body.newObject("PartDesign::Pocket", "Pocket006")
pocket7.Profile = sketch13
pocket7.Length = Q("0.27 in")
pocket7.Reversed = True

# Sketch on YZ plane
sketch14 = body.newObject("Sketcher::SketchObject", "Sketch013")
sketch14.AttachmentSupport = (doc.getObject("YZ_Plane"), [""])
sketch14.MapMode = "FlatFace"
sketch14.AttachmentOffset = App.Placement(V(0, 0, 58.608086), App.Rotation())
sketch14.addGeometry(Part.Circle(V(26.908007, 15.24, 0), V(0, 0, 1), 2.286), False)
sketch14.addGeometry(Part.Circle(V(-21.351993, 15.24, 0), V(0, 0, 1), 2.286), False)
sketch14.addGeometry(Part.Circle(V(-69.611993, 15.24, 0), V(0, 0, 1), 2.286), False)
sketch14.addConstraint(Sketcher.Constraint("Equal", 0, 1))
sketch14.addConstraint(Sketcher.Constraint("Equal", 1, 2))
sketch14.addConstraint(Sketcher.Constraint("Horizontal", 0, 3, 1, 3))
sketch14.addConstraint(Sketcher.Constraint("Horizontal", 1, 3, 2, 3))
sketch14.addConstraint(Sketcher.Constraint("Diameter", 0, Q("0.18 in")))
sketch14.addConstraint(Sketcher.Constraint("DistanceY", -1, 1, 0, 3, Q("0.6 in")))
sketch14.addConstraint(Sketcher.Constraint("DistanceX", 1, 3, 0, 3, Q("1.9 in")))
sketch14.addConstraint(Sketcher.Constraint("DistanceX", 2, 3, 1, 3, Q("1.9 in")))
sketch14.addConstraint(Sketcher.Constraint("DistanceX", -1, 1, 0, 3, Q("26.908007 mm")))
pocket8 = body.newObject("PartDesign::Pocket", "Pocket007")
pocket8.Profile = sketch14
pocket8.Length = Q("0.5 in")
pocket8.Reversed = True

# Sketch on XZ plane
sketch15 = body.newObject("Sketcher::SketchObject", "Sketch014")
sketch15.AttachmentSupport = (doc.getObject("XZ_Plane"), [""])
sketch15.MapMode = "FlatFace"
sketch15.AttachmentOffset = App.Placement(V(0, 0, -45.958007), App.Rotation())
sketch15.addGeometry(Part.Circle(V(-56.961914, 15.24, 0), V(0, 0, 1), 2.286), False)
sketch15.addGeometry(Part.Circle(V(-8.701914, 15.24, 0), V(0, 0, 1), 2.286), False)
sketch15.addGeometry(Part.Circle(V(39.558086, 15.24, 0), V(0, 0, 1), 2.286), False)
sketch15.addConstraint(Sketcher.Constraint("Equal", 0, 1))
sketch15.addConstraint(Sketcher.Constraint("Equal", 1, 2))
sketch15.addConstraint(Sketcher.Constraint("Horizontal", 0, 3, 1, 3))
sketch15.addConstraint(Sketcher.Constraint("Horizontal", 1, 3, 2, 3))
sketch15.addConstraint(Sketcher.Constraint("Diameter", 0, Q("0.18 in")))
sketch15.addConstraint(Sketcher.Constraint("DistanceY", -1, 1, 0, 3, Q("0.6 in")))
sketch15.addConstraint(Sketcher.Constraint("DistanceX", 0, 3, 1, 3, Q("1.9 in")))
sketch15.addConstraint(Sketcher.Constraint("DistanceX", 1, 3, 2, 3, Q("1.9 in")))
sketch15.addConstraint(Sketcher.Constraint("DistanceX", 0, 3, -1, 1, Q("56.961914 mm")))
pocket9 = body.newObject("PartDesign::Pocket", "Pocket008")
pocket9.Profile = sketch15
pocket9.Length = Q("0.5 in")

doc.recompute()
